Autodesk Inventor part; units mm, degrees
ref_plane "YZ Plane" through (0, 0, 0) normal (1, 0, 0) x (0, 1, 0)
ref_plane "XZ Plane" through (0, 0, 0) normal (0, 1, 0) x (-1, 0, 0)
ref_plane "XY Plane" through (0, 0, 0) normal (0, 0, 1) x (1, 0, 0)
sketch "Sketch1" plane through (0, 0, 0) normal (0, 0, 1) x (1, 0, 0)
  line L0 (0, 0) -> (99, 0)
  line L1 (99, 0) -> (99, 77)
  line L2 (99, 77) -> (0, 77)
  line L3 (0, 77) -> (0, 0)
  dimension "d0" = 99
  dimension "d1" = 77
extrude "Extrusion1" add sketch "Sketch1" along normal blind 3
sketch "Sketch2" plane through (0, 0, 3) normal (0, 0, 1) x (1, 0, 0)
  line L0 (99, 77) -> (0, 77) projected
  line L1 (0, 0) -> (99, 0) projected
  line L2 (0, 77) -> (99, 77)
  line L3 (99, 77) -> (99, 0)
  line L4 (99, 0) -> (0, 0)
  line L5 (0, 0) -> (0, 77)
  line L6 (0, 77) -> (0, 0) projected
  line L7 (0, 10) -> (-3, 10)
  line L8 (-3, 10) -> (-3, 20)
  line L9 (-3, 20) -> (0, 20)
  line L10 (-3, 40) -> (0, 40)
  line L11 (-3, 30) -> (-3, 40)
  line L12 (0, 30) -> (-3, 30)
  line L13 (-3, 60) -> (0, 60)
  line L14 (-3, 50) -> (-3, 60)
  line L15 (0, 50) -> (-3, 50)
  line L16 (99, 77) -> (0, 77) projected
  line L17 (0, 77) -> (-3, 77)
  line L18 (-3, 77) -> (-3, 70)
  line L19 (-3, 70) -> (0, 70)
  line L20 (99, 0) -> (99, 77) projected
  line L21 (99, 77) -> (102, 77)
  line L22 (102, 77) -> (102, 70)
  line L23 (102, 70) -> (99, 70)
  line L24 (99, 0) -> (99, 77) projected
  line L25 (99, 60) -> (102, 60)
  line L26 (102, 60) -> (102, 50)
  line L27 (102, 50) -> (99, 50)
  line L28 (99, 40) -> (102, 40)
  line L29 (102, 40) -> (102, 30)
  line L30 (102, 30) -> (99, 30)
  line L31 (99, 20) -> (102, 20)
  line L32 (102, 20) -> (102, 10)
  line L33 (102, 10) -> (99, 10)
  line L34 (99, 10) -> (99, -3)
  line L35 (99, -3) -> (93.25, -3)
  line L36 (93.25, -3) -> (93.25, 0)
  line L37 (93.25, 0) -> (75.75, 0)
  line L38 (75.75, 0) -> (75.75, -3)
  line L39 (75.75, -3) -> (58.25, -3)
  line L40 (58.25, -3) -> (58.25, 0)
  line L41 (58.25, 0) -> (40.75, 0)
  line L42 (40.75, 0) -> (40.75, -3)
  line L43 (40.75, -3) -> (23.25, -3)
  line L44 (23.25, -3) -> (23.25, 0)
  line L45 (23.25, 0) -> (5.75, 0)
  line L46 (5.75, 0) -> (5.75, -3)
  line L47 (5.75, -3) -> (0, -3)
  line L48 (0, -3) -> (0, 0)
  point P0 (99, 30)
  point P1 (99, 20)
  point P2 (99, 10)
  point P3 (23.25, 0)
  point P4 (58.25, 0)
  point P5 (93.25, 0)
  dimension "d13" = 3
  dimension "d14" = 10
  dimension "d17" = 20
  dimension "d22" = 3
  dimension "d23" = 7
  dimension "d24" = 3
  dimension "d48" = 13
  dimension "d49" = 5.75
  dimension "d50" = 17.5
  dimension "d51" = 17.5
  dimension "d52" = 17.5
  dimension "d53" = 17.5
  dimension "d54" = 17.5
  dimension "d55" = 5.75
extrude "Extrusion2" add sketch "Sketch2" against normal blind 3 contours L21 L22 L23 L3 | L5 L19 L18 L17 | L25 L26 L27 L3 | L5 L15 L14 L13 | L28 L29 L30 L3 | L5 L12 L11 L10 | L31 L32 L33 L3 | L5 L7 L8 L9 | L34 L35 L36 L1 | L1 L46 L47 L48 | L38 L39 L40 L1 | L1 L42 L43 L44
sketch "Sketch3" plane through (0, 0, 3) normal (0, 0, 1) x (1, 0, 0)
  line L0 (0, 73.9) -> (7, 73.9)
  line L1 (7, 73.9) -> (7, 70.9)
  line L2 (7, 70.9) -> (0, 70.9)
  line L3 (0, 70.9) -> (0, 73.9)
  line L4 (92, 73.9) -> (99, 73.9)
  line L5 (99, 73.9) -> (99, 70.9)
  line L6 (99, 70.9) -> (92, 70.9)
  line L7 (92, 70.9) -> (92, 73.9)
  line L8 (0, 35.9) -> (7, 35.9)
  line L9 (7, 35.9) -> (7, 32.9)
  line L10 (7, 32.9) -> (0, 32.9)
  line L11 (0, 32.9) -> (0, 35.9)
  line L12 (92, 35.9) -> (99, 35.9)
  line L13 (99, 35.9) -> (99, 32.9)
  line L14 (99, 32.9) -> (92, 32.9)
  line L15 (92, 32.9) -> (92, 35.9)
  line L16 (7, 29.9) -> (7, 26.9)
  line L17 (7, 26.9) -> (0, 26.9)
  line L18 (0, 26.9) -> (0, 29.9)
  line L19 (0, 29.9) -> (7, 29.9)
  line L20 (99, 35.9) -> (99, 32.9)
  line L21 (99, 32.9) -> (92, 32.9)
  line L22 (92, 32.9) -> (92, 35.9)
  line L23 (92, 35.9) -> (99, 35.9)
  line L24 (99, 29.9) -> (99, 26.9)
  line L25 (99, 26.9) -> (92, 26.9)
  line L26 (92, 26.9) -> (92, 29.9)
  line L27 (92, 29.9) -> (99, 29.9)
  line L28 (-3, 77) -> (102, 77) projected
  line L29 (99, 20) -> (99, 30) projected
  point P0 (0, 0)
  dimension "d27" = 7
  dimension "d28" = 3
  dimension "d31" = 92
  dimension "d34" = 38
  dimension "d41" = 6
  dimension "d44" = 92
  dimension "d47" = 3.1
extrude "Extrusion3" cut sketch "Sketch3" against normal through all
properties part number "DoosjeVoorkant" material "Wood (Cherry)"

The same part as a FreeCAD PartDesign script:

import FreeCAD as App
import Part
import Sketcher
from FreeCAD import Vector
Q = App.Units.Quantity


def add_polygon(sketch, points):
    """Adds a closed chain of lines whose ends are joined by coincident constraints."""
    first, n = sketch.GeometryCount, len(points)
    for a, b in zip(points, points[1:] + points[:1]):
        sketch.addGeometry(Part.LineSegment(App.Vector(*a, 0), App.Vector(*b, 0)), False)
    for i in range(n):
        sketch.addConstraint(Sketcher.Constraint("Coincident", first + i, 2, first + (i + 1) % n, 1))

doc = App.newDocument("Part")
params = doc.addObject("Spreadsheet::Sheet", "Params")
for row, (alias, value) in enumerate([
    ("sketch1_width", "99 mm"),
    ("sketch1_height", "77 mm"),
    ("pad1_length", "3 mm"),
    ("sketch2_width", "3 mm"),
    ("sketch2_height", "7 mm"),
    ("sketch2_height2", "10 mm"),
    ("sketch2_width2", "17.5 mm"),
    ("sketch2_width3", "5.75 mm"),
    ("pad2_length", "3 mm"),
    ("sketch3_width", "7 mm"),
    ("sketch3_height", "3 mm"),
], start=1):
    params.set(f"A{row}", alias)
    params.set(f"B{row}", "=" + value)
    params.setAlias(f"B{row}", alias)

body = doc.addObject("PartDesign::Body", "Body")

# Sketch on XY plane
sketch1 = body.newObject("Sketcher::SketchObject", "Sketch")
sketch1.AttachmentSupport = (doc.getObject("XY_Plane"), [""])
sketch1.MapMode = "FlatFace"
add_polygon(sketch1, [(0, 77), (0, 0), (99, 0), (99, 77)])  # lines 0-3
sketch1.addConstraint(Sketcher.Constraint("Vertical", 0))
sketch1.addConstraint(Sketcher.Constraint("Horizontal", 1))
sketch1.addConstraint(Sketcher.Constraint("Vertical", 2))
sketch1.addConstraint(Sketcher.Constraint("Horizontal", 3))
sketch1.addConstraint(Sketcher.Constraint("Coincident", 0, 2, -1, 1))
sketch1.addConstraint(Sketcher.Constraint("DistanceX", 1, 1, 1, 2, Q("99 mm")))
sketch1.addConstraint(Sketcher.Constraint("DistanceY", 0, 2, 0, 1, Q("77 mm")))
sketch1.setExpression("Constraints[9]", "Params.sketch1_width")
sketch1.setExpression("Constraints[10]", "Params.sketch1_height")
pad1 = body.newObject("PartDesign::Pad", "Pad")
pad1.Profile = sketch1
pad1.setExpression("Length", "Params.pad1_length")

# Sketch on XY plane
sketch2 = body.newObject("Sketcher::SketchObject", "Sketch001")
sketch2.AttachmentSupport = (doc.getObject("XY_Plane"), [""])
sketch2.MapMode = "FlatFace"
sketch2.AttachmentOffset = App.Placement(Vector(0, 0, 3), App.Rotation())
add_polygon(sketch2, [(102, 77), (99, 77), (99, 70), (102, 70)])  # lines 0-3
add_polygon(sketch2, [(0, 70), (0, 77), (-3, 77), (-3, 70)])  # lines 4-7
add_polygon(sketch2, [(102, 60), (99, 60), (99, 50), (102, 50)])  # lines 8-11
add_polygon(sketch2, [(0, 50), (0, 60), (-3, 60), (-3, 50)])  # lines 12-15
add_polygon(sketch2, [(102, 40), (99, 40), (99, 30), (102, 30)])  # lines 16-19
add_polygon(sketch2, [(0, 30), (0, 40), (-3, 40), (-3, 30)])  # lines 20-23
add_polygon(sketch2, [(102, 20), (99, 20), (99, 10), (102, 10)])  # lines 24-27
add_polygon(sketch2, [(0, 10), (0, 20), (-3, 20), (-3, 10)])  # lines 28-31
add_polygon(sketch2, [(99, -3), (99, 0), (93.2, 0), (93.2, -3)])  # lines 32-35
add_polygon(sketch2, [(5.8, 0), (0, 0), (0, -3), (5.8, -3)])  # lines 36-39
add_polygon(sketch2, [(75.8, -3), (75.8, 0), (58.2, 0), (58.2, -3)])  # lines 40-43
add_polygon(sketch2, [(40.8, 0), (23.2, 0), (23.2, -3), (40.8, -3)])  # lines 44-47
sketch2.addConstraint(Sketcher.Constraint("Horizontal", 0))
sketch2.addConstraint(Sketcher.Constraint("Vertical", 1))
sketch2.addConstraint(Sketcher.Constraint("Horizontal", 2))
sketch2.addConstraint(Sketcher.Constraint("Vertical", 3))
sketch2.addConstraint(Sketcher.Constraint("Vertical", 4))
sketch2.addConstraint(Sketcher.Constraint("Horizontal", 5))
sketch2.addConstraint(Sketcher.Constraint("Vertical", 6))
sketch2.addConstraint(Sketcher.Constraint("Horizontal", 7))
sketch2.addConstraint(Sketcher.Constraint("Horizontal", 8))
sketch2.addConstraint(Sketcher.Constraint("Vertical", 9))
sketch2.addConstraint(Sketcher.Constraint("Horizontal", 10))
sketch2.addConstraint(Sketcher.Constraint("Vertical", 11))
sketch2.addConstraint(Sketcher.Constraint("Vertical", 12))
sketch2.addConstraint(Sketcher.Constraint("Horizontal", 13))
sketch2.addConstraint(Sketcher.Constraint("Vertical", 14))
sketch2.addConstraint(Sketcher.Constraint("Horizontal", 15))
sketch2.addConstraint(Sketcher.Constraint("Horizontal", 16))
sketch2.addConstraint(Sketcher.Constraint("Vertical", 17))
sketch2.addConstraint(Sketcher.Constraint("Horizontal", 18))
sketch2.addConstraint(Sketcher.Constraint("Vertical", 19))
sketch2.addConstraint(Sketcher.Constraint("Vertical", 20))
sketch2.addConstraint(Sketcher.Constraint("Horizontal", 21))
sketch2.addConstraint(Sketcher.Constraint("Vertical", 22))
sketch2.addConstraint(Sketcher.Constraint("Horizontal", 23))
sketch2.addConstraint(Sketcher.Constraint("Horizontal", 24))
sketch2.addConstraint(Sketcher.Constraint("Vertical", 25))
sketch2.addConstraint(Sketcher.Constraint("Horizontal", 26))
sketch2.addConstraint(Sketcher.Constraint("Vertical", 27))
sketch2.addConstraint(Sketcher.Constraint("Vertical", 28))
sketch2.addConstraint(Sketcher.Constraint("Horizontal", 29))
sketch2.addConstraint(Sketcher.Constraint("Vertical", 30))
sketch2.addConstraint(Sketcher.Constraint("Horizontal", 31))
sketch2.addConstraint(Sketcher.Constraint("Vertical", 32))
sketch2.addConstraint(Sketcher.Constraint("Horizontal", 33))
sketch2.addConstraint(Sketcher.Constraint("Vertical", 34))
sketch2.addConstraint(Sketcher.Constraint("Horizontal", 35))
sketch2.addConstraint(Sketcher.Constraint("Horizontal", 36))
sketch2.addConstraint(Sketcher.Constraint("Vertical", 37))
sketch2.addConstraint(Sketcher.Constraint("Horizontal", 38))
sketch2.addConstraint(Sketcher.Constraint("Vertical", 39))
sketch2.addConstraint(Sketcher.Constraint("Vertical", 40))
sketch2.addConstraint(Sketcher.Constraint("Horizontal", 41))
sketch2.addConstraint(Sketcher.Constraint("Vertical", 42))
sketch2.addConstraint(Sketcher.Constraint("Horizontal", 43))
sketch2.addConstraint(Sketcher.Constraint("Horizontal", 44))
sketch2.addConstraint(Sketcher.Constraint("Vertical", 45))
sketch2.addConstraint(Sketcher.Constraint("Horizontal", 46))
sketch2.addConstraint(Sketcher.Constraint("Vertical", 47))
sketch2.addConstraint(Sketcher.Constraint("Coincident", 36, 2, -1, 1))
sketch2.addConstraint(Sketcher.Constraint("PointOnObject", 4, 2, -2))
sketch2.addConstraint(Sketcher.Constraint("PointOnObject", 12, 2, -2))
sketch2.addConstraint(Sketcher.Constraint("PointOnObject", 20, 2, -2))
sketch2.addConstraint(Sketcher.Constraint("PointOnObject", 28, 2, -2))
sketch2.addConstraint(Sketcher.Constraint("PointOnObject", 32, 2, -1))
sketch2.addConstraint(Sketcher.Constraint("PointOnObject", 40, 2, -1))
sketch2.addConstraint(Sketcher.Constraint("PointOnObject", 44, 2, -1))
sketch2.addConstraint(Sketcher.Constraint("Horizontal", 3, 2, 4, 2))
sketch2.addConstraint(Sketcher.Constraint("Horizontal", 2, 2, 6, 2))
sketch2.addConstraint(Sketcher.Constraint("Horizontal", 11, 2, 12, 2))
sketch2.addConstraint(Sketcher.Constraint("Horizontal", 10, 2, 14, 2))
sketch2.addConstraint(Sketcher.Constraint("Horizontal", 19, 2, 20, 2))
sketch2.addConstraint(Sketcher.Constraint("Horizontal", 18, 2, 22, 2))
sketch2.addConstraint(Sketcher.Constraint("Horizontal", 27, 2, 28, 2))
sketch2.addConstraint(Sketcher.Constraint("Horizontal", 26, 2, 30, 2))
sketch2.addConstraint(Sketcher.Constraint("Horizontal", 35, 2, 37, 2))
sketch2.addConstraint(Sketcher.Constraint("Horizontal", 38, 2, 42, 2))
sketch2.addConstraint(Sketcher.Constraint("Horizontal", 43, 2, 45, 2))
sketch2.addConstraint(Sketcher.Constraint("Vertical", 1, 2, 8, 2))
sketch2.addConstraint(Sketcher.Constraint("Vertical", 3, 2, 10, 2))
sketch2.addConstraint(Sketcher.Constraint("Vertical", 6, 2, 13, 2))
sketch2.addConstraint(Sketcher.Constraint("Vertical", 9, 2, 16, 2))
sketch2.addConstraint(Sketcher.Constraint("Vertical", 11, 2, 18, 2))
sketch2.addConstraint(Sketcher.Constraint("Vertical", 14, 2, 21, 2))
sketch2.addConstraint(Sketcher.Constraint("Vertical", 17, 2, 24, 2))
sketch2.addConstraint(Sketcher.Constraint("Vertical", 19, 2, 26, 2))
sketch2.addConstraint(Sketcher.Constraint("Vertical", 22, 2, 29, 2))
sketch2.addConstraint(Sketcher.Constraint("Vertical", 25, 2, 32, 2))
sketch2.addConstraint(Sketcher.Constraint("Equal", 2, 5))
sketch2.addConstraint(Sketcher.Constraint("Equal", 35, 36))
sketch2.addConstraint(Sketcher.Constraint("Equal", 43, 44))
sketch2.addConstraint(Sketcher.Constraint("Equal", 14, 17))
sketch2.addConstraint(Sketcher.Constraint("Equal", 22, 25))
sketch2.addConstraint(Sketcher.Constraint("Equal", 31, 32))
sketch2.addConstraint(Sketcher.Constraint("DistanceX", 0, 2, 0, 1, Q("3 mm")))
sketch2.addConstraint(Sketcher.Constraint("DistanceY", 1, 2, 1, 1, Q("7 mm")))
sketch2.addConstraint(Sketcher.Constraint("DistanceY", 9, 2, 9, 1, Q("10 mm")))
sketch2.addConstraint(Sketcher.Constraint("DistanceX", 41, 2, 41, 1, Q("17.5 mm")))
sketch2.addConstraint(Sketcher.Constraint("DistanceY", -1, 1, 24, 2, Q("20 mm")))
sketch2.addConstraint(Sketcher.Constraint("DistanceY", 8, 2, 1, 2, Q("10 mm")))
sketch2.addConstraint(Sketcher.Constraint("DistanceY", 16, 2, 9, 2, Q("10 mm")))
sketch2.addConstraint(Sketcher.Constraint("DistanceY", 24, 2, 17, 2, Q("10 mm")))
sketch2.addConstraint(Sketcher.Constraint("DistanceX", 33, 2, 33, 1, Q("5.75 mm")))
sketch2.addConstraint(Sketcher.Constraint("DistanceX", 40, 2, 33, 2, Q("17.5 mm")))
sketch2.addConstraint(Sketcher.Constraint("DistanceX", 39, 2, 44, 2, Q("17.5 mm")))
sketch2.addConstraint(Sketcher.Constraint("DistanceX", 46, 2, 42, 2, Q("17.5 mm")))
sketch2.setExpression("Constraints[131]", "Params.sketch2_width")
sketch2.setExpression("Constraints[132]", "Params.sketch2_height")
sketch2.setExpression("Constraints[133]", "Params.sketch2_height2")
sketch2.setExpression("Constraints[134]", "Params.sketch2_width2")
sketch2.setExpression("Constraints[139]", "Params.sketch2_width3")
pad2 = body.newObject("PartDesign::Pad", "Pad001")
pad2.Profile = sketch2
pad2.setExpression("Length", "Params.pad2_length")
pad2.Reversed = True

# Sketch on XY plane
sketch3 = body.newObject("Sketcher::SketchObject", "Sketch002")
sketch3.AttachmentSupport = (doc.getObject("XY_Plane"), [""])
sketch3.MapMode = "FlatFace"
sketch3.AttachmentOffset = App.Placement(Vector(0, 0, 3), App.Rotation())
add_polygon(sketch3, [(7, 73.9), (0, 73.9), (0, 70.9), (7, 70.9)])  # lines 0-3
add_polygon(sketch3, [(99, 73.9), (92, 73.9), (92, 70.9), (99, 70.9)])  # lines 4-7
add_polygon(sketch3, [(7, 35.9), (0, 35.9), (0, 32.9), (7, 32.9)])  # lines 8-11
add_polygon(sketch3, [(99, 35.9), (92, 35.9), (92, 32.9), (99, 32.9)])  # lines 12-15
add_polygon(sketch3, [(7, 26.9), (7, 29.9), (0, 29.9), (0, 26.9)])  # lines 16-19
add_polygon(sketch3, [(99, 26.9), (99, 29.9), (92, 29.9), (92, 26.9)])  # lines 20-23
sketch3.addConstraint(Sketcher.Constraint("Horizontal", 0))
sketch3.addConstraint(Sketcher.Constraint("Vertical", 1))
sketch3.addConstraint(Sketcher.Constraint("Horizontal", 2))
sketch3.addConstraint(Sketcher.Constraint("Vertical", 3))
sketch3.addConstraint(Sketcher.Constraint("Horizontal", 4))
sketch3.addConstraint(Sketcher.Constraint("Vertical", 5))
sketch3.addConstraint(Sketcher.Constraint("Horizontal", 6))
sketch3.addConstraint(Sketcher.Constraint("Vertical", 7))
sketch3.addConstraint(Sketcher.Constraint("Horizontal", 8))
sketch3.addConstraint(Sketcher.Constraint("Vertical", 9))
sketch3.addConstraint(Sketcher.Constraint("Horizontal", 10))
sketch3.addConstraint(Sketcher.Constraint("Vertical", 11))
sketch3.addConstraint(Sketcher.Constraint("Horizontal", 12))
sketch3.addConstraint(Sketcher.Constraint("Vertical", 13))
sketch3.addConstraint(Sketcher.Constraint("Horizontal", 14))
sketch3.addConstraint(Sketcher.Constraint("Vertical", 15))
sketch3.addConstraint(Sketcher.Constraint("Vertical", 16))
sketch3.addConstraint(Sketcher.Constraint("Horizontal", 17))
sketch3.addConstraint(Sketcher.Constraint("Vertical", 18))
sketch3.addConstraint(Sketcher.Constraint("Horizontal", 19))
sketch3.addConstraint(Sketcher.Constraint("Vertical", 20))
sketch3.addConstraint(Sketcher.Constraint("Horizontal", 21))
sketch3.addConstraint(Sketcher.Constraint("Vertical", 22))
sketch3.addConstraint(Sketcher.Constraint("Horizontal", 23))
sketch3.addConstraint(Sketcher.Constraint("PointOnObject", 0, 2, -2))
sketch3.addConstraint(Sketcher.Constraint("PointOnObject", 8, 2, -2))
sketch3.addConstraint(Sketcher.Constraint("PointOnObject", 17, 2, -2))
sketch3.addConstraint(Sketcher.Constraint("Horizontal", 3, 2, 4, 2))
sketch3.addConstraint(Sketcher.Constraint("Horizontal", 2, 2, 5, 2))
sketch3.addConstraint(Sketcher.Constraint("Horizontal", 11, 2, 12, 2))
sketch3.addConstraint(Sketcher.Constraint("Horizontal", 10, 2, 13, 2))
sketch3.addConstraint(Sketcher.Constraint("Horizontal", 17, 2, 20, 2))
sketch3.addConstraint(Sketcher.Constraint("Horizontal", 19, 2, 22, 2))
sketch3.addConstraint(Sketcher.Constraint("Vertical", 3, 2, 10, 2))
sketch3.addConstraint(Sketcher.Constraint("Vertical", 5, 2, 12, 2))
sketch3.addConstraint(Sketcher.Constraint("Vertical", 7, 2, 14, 2))
sketch3.addConstraint(Sketcher.Constraint("Vertical", 11, 2, 16, 2))
sketch3.addConstraint(Sketcher.Constraint("Vertical", 15, 2, 20, 2))
sketch3.addConstraint(Sketcher.Constraint("Vertical", 13, 2, 21, 2))
sketch3.addConstraint(Sketcher.Constraint("Equal", 2, 4))
sketch3.addConstraint(Sketcher.Constraint("Equal", 7, 9))
sketch3.addConstraint(Sketcher.Constraint("Equal", 15, 16))
sketch3.addConstraint(Sketcher.Constraint("DistanceX", 0, 2, 0, 1, Q("7 mm")))
sketch3.addConstraint(Sketcher.Constraint("DistanceY", 1, 2, 1, 1, Q("3 mm")))
sketch3.addConstraint(Sketcher.Constraint("DistanceX", -1, 1, 4, 2, Q("92 mm")))
sketch3.addConstraint(Sketcher.Constraint("DistanceY", 8, 2, 0, 2, Q("38 mm")))
sketch3.addConstraint(Sketcher.Constraint("DistanceY", 16, 2, 10, 2, Q("3 mm")))
sketch3.addConstraint(Sketcher.Constraint("DistanceY", -1, 1, 0, 2, Q("73.9 mm")))
sketch3.setExpression("Constraints[66]", "Params.sketch3_width")
sketch3.setExpression("Constraints[67]", "Params.sketch3_height")
pocket1 = body.newObject("PartDesign::Pocket", "Pocket")
pocket1.Profile = sketch3
pocket1.Type = "ThroughAll"

doc.recompute()
